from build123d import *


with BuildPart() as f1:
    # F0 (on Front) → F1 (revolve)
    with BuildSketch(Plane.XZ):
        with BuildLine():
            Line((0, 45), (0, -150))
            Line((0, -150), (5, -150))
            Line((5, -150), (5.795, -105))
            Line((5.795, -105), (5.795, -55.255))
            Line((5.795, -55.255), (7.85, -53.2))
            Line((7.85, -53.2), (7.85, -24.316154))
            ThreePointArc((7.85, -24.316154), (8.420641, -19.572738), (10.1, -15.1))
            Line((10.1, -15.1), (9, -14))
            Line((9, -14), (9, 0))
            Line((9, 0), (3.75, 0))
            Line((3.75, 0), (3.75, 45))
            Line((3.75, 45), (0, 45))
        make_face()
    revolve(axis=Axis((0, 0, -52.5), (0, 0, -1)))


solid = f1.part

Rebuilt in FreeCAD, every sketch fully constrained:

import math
import FreeCAD as App
import Part
import Sketcher
from FreeCAD import Vector
Q = App.Units.Quantity

doc = App.newDocument("Part")
body = doc.addObject("PartDesign::Body", "Body")

sketch1 = body.newObject("Sketcher::SketchObject", "Sketch")
sketch1.AttachmentSupport = (doc.getObject("XZ_Plane"), [""])
sketch1.MapMode = "FlatFace"
sketch1.addGeometry([
    Part.LineSegment(Vector(0, 45, 0), Vector(0, -150, 0)),
    Part.LineSegment(Vector(0, -150, 0), Vector(5, -150, 0)),
    Part.LineSegment(Vector(5, -150, 0), Vector(5.8, -105, 0)),
    Part.LineSegment(Vector(5.8, -105, 0), Vector(5.8, -55.3, 0)),
    Part.LineSegment(Vector(5.8, -55.3, 0), Vector(7.8, -53.2, 0)),
    Part.LineSegment(Vector(7.8, -53.2, 0), Vector(7.8, -24.3, 0)),
    Part.ArcOfCircle(Part.Circle(Vector(27.9, -24.3, 0), Vector(0, 0, 1), 20), math.radians(153), math.radians(180)),
    Part.LineSegment(Vector(10.1, -15.1, 0), Vector(9, -14, 0)),
    Part.LineSegment(Vector(9, -14, 0), Vector(9, 0, 0)),
    Part.LineSegment(Vector(9, 0, 0), Vector(3.8, 0, 0)),
    Part.LineSegment(Vector(3.8, 0, 0), Vector(3.8, 45, 0)),
    Part.LineSegment(Vector(3.8, 45, 0), Vector(0, 45, 0)),
], False)
sketch1.addConstraint([
    Sketcher.Constraint("Coincident", 0, 2, 1, 1),
    Sketcher.Constraint("Coincident", 1, 2, 2, 1),
    Sketcher.Constraint("Coincident", 2, 2, 3, 1),
    Sketcher.Constraint("Coincident", 3, 2, 4, 1),
    Sketcher.Constraint("Coincident", 4, 2, 5, 1),
    Sketcher.Constraint("Tangent", 5, 2, 6, 2),
    Sketcher.Constraint("Coincident", 6, 1, 7, 1),
    Sketcher.Constraint("Coincident", 7, 2, 8, 1),
    Sketcher.Constraint("Coincident", 8, 2, 9, 1),
    Sketcher.Constraint("Coincident", 9, 2, 10, 1),
    Sketcher.Constraint("Coincident", 10, 2, 11, 1),
    Sketcher.Constraint("Coincident", 11, 2, 0, 1),
    Sketcher.Constraint("Vertical", 0),
    Sketcher.Constraint("Horizontal", 1),
    Sketcher.Constraint("Vertical", 3),
    Sketcher.Constraint("Vertical", 5),
    Sketcher.Constraint("Vertical", 8),
    Sketcher.Constraint("Horizontal", 9),
    Sketcher.Constraint("Vertical", 10),
    Sketcher.Constraint("Horizontal", 11),
    Sketcher.Constraint("PointOnObject", 0, 2, -2),
    Sketcher.Constraint("PointOnObject", 8, 2, -1),
    Sketcher.Constraint("Perpendicular", 4, 7),
    Sketcher.Constraint("DistanceX", 1, 1, 1, 2, 5.0),
    Sketcher.Constraint("DistanceY", 0, 2, 0, 1, 195.0),
    Sketcher.Constraint("DistanceY", 8, 1, 8, 2, 14.0),
    Sketcher.Constraint("DistanceY", 10, 1, 10, 2, 45.0),
    Sketcher.Constraint("Angle", 4, Q("45 deg")),
    Sketcher.Constraint("DistanceY", 2, 2, -1, 1, 105.0),
    Sketcher.Constraint("DistanceX", -1, 1, 7, 2, 9.0),
    Sketcher.Constraint("DistanceX", 9, 2, 9, 1, 5.25),
    Sketcher.Constraint("DistanceY", 4, 2, -1, 1, 53.2),
    Sketcher.Constraint("DistanceX", -1, 1, 6, 1, 10.1),
    Sketcher.Constraint("DistanceX", 9, 2, 5, 2, 4.1),
    Sketcher.Constraint("DistanceY", 3, 1, 3, 2, 49.745),
    Sketcher.Constraint("Radius", 6, 20.000009),
])
revolution = body.newObject("PartDesign::Revolution", "Revolution")
revolution.Profile = sketch1
revolution.ReferenceAxis = (sketch1, ["V_Axis"])
revolution.Angle = 360

doc.recompute()
